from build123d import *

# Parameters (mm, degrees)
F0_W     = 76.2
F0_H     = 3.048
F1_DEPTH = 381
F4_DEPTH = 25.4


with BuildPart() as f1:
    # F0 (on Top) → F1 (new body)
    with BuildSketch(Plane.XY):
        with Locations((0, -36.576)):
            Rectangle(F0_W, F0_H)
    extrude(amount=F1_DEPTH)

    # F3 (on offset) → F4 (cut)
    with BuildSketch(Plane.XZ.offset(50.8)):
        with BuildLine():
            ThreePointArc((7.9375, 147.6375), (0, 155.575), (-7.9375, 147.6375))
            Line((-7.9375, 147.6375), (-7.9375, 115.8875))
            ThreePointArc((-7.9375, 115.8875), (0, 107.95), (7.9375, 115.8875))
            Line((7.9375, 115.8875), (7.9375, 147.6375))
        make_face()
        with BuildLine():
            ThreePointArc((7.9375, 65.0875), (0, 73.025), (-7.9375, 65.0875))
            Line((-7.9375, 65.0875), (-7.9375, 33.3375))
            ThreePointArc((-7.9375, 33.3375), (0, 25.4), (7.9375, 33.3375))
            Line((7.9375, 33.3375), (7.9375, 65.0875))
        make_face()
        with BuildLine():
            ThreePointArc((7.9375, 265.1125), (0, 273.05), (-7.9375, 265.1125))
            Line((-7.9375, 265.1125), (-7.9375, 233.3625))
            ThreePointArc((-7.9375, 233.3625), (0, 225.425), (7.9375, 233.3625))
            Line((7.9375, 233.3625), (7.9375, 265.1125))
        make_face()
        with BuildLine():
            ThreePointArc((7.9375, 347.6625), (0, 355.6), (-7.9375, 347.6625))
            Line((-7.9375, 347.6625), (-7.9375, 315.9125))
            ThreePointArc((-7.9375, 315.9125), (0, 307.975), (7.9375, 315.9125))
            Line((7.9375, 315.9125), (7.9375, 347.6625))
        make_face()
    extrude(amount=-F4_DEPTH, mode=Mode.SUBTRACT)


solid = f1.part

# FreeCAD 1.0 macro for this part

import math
import FreeCAD as App
import Part
import Sketcher
from FreeCAD import Vector
Q = App.Units.Quantity


def add_polygon(sketch, points):
    """Adds a closed chain of lines whose ends are joined by coincident constraints."""
    first, n = sketch.GeometryCount, len(points)
    for a, b in zip(points, points[1:] + points[:1]):
        sketch.addGeometry(Part.LineSegment(App.Vector(*a, 0), App.Vector(*b, 0)), False)
    for i in range(n):
        sketch.addConstraint(Sketcher.Constraint("Coincident", first + i, 2, first + (i + 1) % n, 1))

doc = App.newDocument("Part")
body = doc.addObject("PartDesign::Body", "Body")

# Sketch on XY plane
sketch1 = body.newObject("Sketcher::SketchObject", "Sketch")
sketch1.AttachmentSupport = (doc.getObject("XY_Plane"), [""])
sketch1.MapMode = "FlatFace"
add_polygon(sketch1, [(-38.1, -35.052), (-38.1, -38.1), (38.1, -38.1), (38.1, -35.052)])  # lines 0-3
sketch1.addConstraint(Sketcher.Constraint("Vertical", 0))
sketch1.addConstraint(Sketcher.Constraint("Horizontal", 1))
sketch1.addConstraint(Sketcher.Constraint("Vertical", 2))
sketch1.addConstraint(Sketcher.Constraint("Horizontal", 3))
sketch1.addConstraint(Sketcher.Constraint("DistanceX", 1, 1, 1, 2, Q("3 in")))
sketch1.addConstraint(Sketcher.Constraint("DistanceY", 0, 2, 0, 1, Q("0.12 in")))
sketch1.addConstraint(Sketcher.Constraint("DistanceX", 0, 2, -1, 1, Q("1.5 in")))
sketch1.addConstraint(Sketcher.Constraint("DistanceY", 0, 2, -1, 1, Q("1.5 in")))
pad1 = body.newObject("PartDesign::Pad", "Pad")
pad1.Profile = sketch1
pad1.Length = Q("15 in")

# Sketch on XZ plane
sketch2 = body.newObject("Sketcher::SketchObject", "Sketch001")
sketch2.AttachmentSupport = (doc.getObject("XZ_Plane"), [""])
sketch2.MapMode = "FlatFace"
sketch2.AttachmentOffset = App.Placement(Vector(0, 0, 2 * 25.4), App.Rotation())
sketch2.addGeometry(Part.ArcOfCircle(Part.Circle(Vector(0, 147.6375, 0), Vector(0, 0, 1), 7.9375), math.radians(0), math.radians(180)), False)
sketch2.addGeometry(Part.LineSegment(Vector(-7.9375, 147.6375, 0), Vector(-7.9375, 115.8875, 0)), False)
sketch2.addGeometry(Part.ArcOfCircle(Part.Circle(Vector(0, 115.8875, 0), Vector(0, 0, 1), 7.9375), math.radians(180), math.radians(360)), False)
sketch2.addGeometry(Part.LineSegment(Vector(7.9375, 115.8875, 0), Vector(7.9375, 147.6375, 0)), False)
sketch2.addGeometry(Part.ArcOfCircle(Part.Circle(Vector(0, 65.0875, 0), Vector(0, 0, 1), 7.9375), math.radians(0), math.radians(180)), False)
sketch2.addGeometry(Part.LineSegment(Vector(-7.9375, 65.0875, 0), Vector(-7.9375, 33.3375, 0)), False)
sketch2.addGeometry(Part.ArcOfCircle(Part.Circle(Vector(0, 33.3375, 0), Vector(0, 0, 1), 7.9375), math.radians(180), math.radians(360)), False)
sketch2.addGeometry(Part.LineSegment(Vector(7.9375, 33.3375, 0), Vector(7.9375, 65.0875, 0)), False)
sketch2.addGeometry(Part.ArcOfCircle(Part.Circle(Vector(0, 265.1125, 0), Vector(0, 0, 1), 7.9375), math.radians(0), math.radians(180)), False)
sketch2.addGeometry(Part.LineSegment(Vector(-7.9375, 265.1125, 0), Vector(-7.9375, 233.3625, 0)), False)
sketch2.addGeometry(Part.ArcOfCircle(Part.Circle(Vector(0, 233.3625, 0), Vector(0, 0, 1), 7.9375), math.radians(180), math.radians(360)), False)
sketch2.addGeometry(Part.LineSegment(Vector(7.9375, 233.3625, 0), Vector(7.9375, 265.1125, 0)), False)
sketch2.addGeometry(Part.ArcOfCircle(Part.Circle(Vector(0, 347.6625, 0), Vector(0, 0, 1), 7.9375), math.radians(0), math.radians(180)), False)
sketch2.addGeometry(Part.LineSegment(Vector(-7.9375, 347.6625, 0), Vector(-7.9375, 315.9125, 0)), False)
sketch2.addGeometry(Part.ArcOfCircle(Part.Circle(Vector(0, 315.9125, 0), Vector(0, 0, 1), 7.9375), math.radians(180), math.radians(360)), False)
sketch2.addGeometry(Part.LineSegment(Vector(7.9375, 315.9125, 0), Vector(7.9375, 347.6625, 0)), False)
sketch2.addConstraint(Sketcher.Constraint("Tangent", 0, 2, 1, 1))
sketch2.addConstraint(Sketcher.Constraint("Tangent", 1, 2, 2, 1))
sketch2.addConstraint(Sketcher.Constraint("Tangent", 2, 2, 3, 1))
sketch2.addConstraint(Sketcher.Constraint("Tangent", 3, 2, 0, 1))
sketch2.addConstraint(Sketcher.Constraint("Tangent", 4, 2, 5, 1))
sketch2.addConstraint(Sketcher.Constraint("Tangent", 5, 2, 6, 1))
sketch2.addConstraint(Sketcher.Constraint("Tangent", 6, 2, 7, 1))
sketch2.addConstraint(Sketcher.Constraint("Tangent", 7, 2, 4, 1))
sketch2.addConstraint(Sketcher.Constraint("Tangent", 8, 2, 9, 1))
sketch2.addConstraint(Sketcher.Constraint("Tangent", 9, 2, 10, 1))
sketch2.addConstraint(Sketcher.Constraint("Tangent", 10, 2, 11, 1))
sketch2.addConstraint(Sketcher.Constraint("Tangent", 11, 2, 8, 1))
sketch2.addConstraint(Sketcher.Constraint("Tangent", 12, 2, 13, 1))
sketch2.addConstraint(Sketcher.Constraint("Tangent", 13, 2, 14, 1))
sketch2.addConstraint(Sketcher.Constraint("Tangent", 14, 2, 15, 1))
sketch2.addConstraint(Sketcher.Constraint("Tangent", 15, 2, 12, 1))
sketch2.addConstraint(Sketcher.Constraint("Vertical", 1))
sketch2.addConstraint(Sketcher.Constraint("Vertical", 3))
sketch2.addConstraint(Sketcher.Constraint("Vertical", 5))
sketch2.addConstraint(Sketcher.Constraint("Vertical", 7))
sketch2.addConstraint(Sketcher.Constraint("Vertical", 9))
sketch2.addConstraint(Sketcher.Constraint("Vertical", 11))
sketch2.addConstraint(Sketcher.Constraint("Vertical", 13))
sketch2.addConstraint(Sketcher.Constraint("Vertical", 15))
sketch2.addConstraint(Sketcher.Constraint("Equal", 2, 4))
sketch2.addConstraint(Sketcher.Constraint("Equal", 6, 8))
sketch2.addConstraint(Sketcher.Constraint("Equal", 10, 12))
sketch2.addConstraint(Sketcher.Constraint("PointOnObject", 0, 3, -2))
sketch2.addConstraint(Sketcher.Constraint("PointOnObject", 4, 3, -2))
sketch2.addConstraint(Sketcher.Constraint("PointOnObject", 8, 3, -2))
sketch2.addConstraint(Sketcher.Constraint("PointOnObject", 12, 3, -2))
sketch2.addConstraint(Sketcher.Constraint("Equal", 3, 5))
sketch2.addConstraint(Sketcher.Constraint("Equal", 7, 9))
sketch2.addConstraint(Sketcher.Constraint("Equal", 11, 13))
sketch2.addConstraint(Sketcher.Constraint("Radius", 0, Q("0.3125 in")))
sketch2.addConstraint(Sketcher.Constraint("DistanceY", 4, 3, 2, 3, Q("2 in")))
sketch2.addConstraint(Sketcher.Constraint("DistanceY", 8, 3, 14, 3, Q("2 in")))
sketch2.addConstraint(Sketcher.Constraint("DistanceY", 1, 2, 1, 1, Q("1.25 in")))
sketch2.addConstraint(Sketcher.Constraint("DistanceY", -1, 1, 0, 3, Q("5.8125 in")))
sketch2.addConstraint(Sketcher.Constraint("DistanceY", -1, 1, 8, 3, Q("10.4375 in")))
pocket1 = body.newObject("PartDesign::Pocket", "Pocket")
pocket1.Profile = sketch2
pocket1.Length = Q("1 in")

doc.recompute()
